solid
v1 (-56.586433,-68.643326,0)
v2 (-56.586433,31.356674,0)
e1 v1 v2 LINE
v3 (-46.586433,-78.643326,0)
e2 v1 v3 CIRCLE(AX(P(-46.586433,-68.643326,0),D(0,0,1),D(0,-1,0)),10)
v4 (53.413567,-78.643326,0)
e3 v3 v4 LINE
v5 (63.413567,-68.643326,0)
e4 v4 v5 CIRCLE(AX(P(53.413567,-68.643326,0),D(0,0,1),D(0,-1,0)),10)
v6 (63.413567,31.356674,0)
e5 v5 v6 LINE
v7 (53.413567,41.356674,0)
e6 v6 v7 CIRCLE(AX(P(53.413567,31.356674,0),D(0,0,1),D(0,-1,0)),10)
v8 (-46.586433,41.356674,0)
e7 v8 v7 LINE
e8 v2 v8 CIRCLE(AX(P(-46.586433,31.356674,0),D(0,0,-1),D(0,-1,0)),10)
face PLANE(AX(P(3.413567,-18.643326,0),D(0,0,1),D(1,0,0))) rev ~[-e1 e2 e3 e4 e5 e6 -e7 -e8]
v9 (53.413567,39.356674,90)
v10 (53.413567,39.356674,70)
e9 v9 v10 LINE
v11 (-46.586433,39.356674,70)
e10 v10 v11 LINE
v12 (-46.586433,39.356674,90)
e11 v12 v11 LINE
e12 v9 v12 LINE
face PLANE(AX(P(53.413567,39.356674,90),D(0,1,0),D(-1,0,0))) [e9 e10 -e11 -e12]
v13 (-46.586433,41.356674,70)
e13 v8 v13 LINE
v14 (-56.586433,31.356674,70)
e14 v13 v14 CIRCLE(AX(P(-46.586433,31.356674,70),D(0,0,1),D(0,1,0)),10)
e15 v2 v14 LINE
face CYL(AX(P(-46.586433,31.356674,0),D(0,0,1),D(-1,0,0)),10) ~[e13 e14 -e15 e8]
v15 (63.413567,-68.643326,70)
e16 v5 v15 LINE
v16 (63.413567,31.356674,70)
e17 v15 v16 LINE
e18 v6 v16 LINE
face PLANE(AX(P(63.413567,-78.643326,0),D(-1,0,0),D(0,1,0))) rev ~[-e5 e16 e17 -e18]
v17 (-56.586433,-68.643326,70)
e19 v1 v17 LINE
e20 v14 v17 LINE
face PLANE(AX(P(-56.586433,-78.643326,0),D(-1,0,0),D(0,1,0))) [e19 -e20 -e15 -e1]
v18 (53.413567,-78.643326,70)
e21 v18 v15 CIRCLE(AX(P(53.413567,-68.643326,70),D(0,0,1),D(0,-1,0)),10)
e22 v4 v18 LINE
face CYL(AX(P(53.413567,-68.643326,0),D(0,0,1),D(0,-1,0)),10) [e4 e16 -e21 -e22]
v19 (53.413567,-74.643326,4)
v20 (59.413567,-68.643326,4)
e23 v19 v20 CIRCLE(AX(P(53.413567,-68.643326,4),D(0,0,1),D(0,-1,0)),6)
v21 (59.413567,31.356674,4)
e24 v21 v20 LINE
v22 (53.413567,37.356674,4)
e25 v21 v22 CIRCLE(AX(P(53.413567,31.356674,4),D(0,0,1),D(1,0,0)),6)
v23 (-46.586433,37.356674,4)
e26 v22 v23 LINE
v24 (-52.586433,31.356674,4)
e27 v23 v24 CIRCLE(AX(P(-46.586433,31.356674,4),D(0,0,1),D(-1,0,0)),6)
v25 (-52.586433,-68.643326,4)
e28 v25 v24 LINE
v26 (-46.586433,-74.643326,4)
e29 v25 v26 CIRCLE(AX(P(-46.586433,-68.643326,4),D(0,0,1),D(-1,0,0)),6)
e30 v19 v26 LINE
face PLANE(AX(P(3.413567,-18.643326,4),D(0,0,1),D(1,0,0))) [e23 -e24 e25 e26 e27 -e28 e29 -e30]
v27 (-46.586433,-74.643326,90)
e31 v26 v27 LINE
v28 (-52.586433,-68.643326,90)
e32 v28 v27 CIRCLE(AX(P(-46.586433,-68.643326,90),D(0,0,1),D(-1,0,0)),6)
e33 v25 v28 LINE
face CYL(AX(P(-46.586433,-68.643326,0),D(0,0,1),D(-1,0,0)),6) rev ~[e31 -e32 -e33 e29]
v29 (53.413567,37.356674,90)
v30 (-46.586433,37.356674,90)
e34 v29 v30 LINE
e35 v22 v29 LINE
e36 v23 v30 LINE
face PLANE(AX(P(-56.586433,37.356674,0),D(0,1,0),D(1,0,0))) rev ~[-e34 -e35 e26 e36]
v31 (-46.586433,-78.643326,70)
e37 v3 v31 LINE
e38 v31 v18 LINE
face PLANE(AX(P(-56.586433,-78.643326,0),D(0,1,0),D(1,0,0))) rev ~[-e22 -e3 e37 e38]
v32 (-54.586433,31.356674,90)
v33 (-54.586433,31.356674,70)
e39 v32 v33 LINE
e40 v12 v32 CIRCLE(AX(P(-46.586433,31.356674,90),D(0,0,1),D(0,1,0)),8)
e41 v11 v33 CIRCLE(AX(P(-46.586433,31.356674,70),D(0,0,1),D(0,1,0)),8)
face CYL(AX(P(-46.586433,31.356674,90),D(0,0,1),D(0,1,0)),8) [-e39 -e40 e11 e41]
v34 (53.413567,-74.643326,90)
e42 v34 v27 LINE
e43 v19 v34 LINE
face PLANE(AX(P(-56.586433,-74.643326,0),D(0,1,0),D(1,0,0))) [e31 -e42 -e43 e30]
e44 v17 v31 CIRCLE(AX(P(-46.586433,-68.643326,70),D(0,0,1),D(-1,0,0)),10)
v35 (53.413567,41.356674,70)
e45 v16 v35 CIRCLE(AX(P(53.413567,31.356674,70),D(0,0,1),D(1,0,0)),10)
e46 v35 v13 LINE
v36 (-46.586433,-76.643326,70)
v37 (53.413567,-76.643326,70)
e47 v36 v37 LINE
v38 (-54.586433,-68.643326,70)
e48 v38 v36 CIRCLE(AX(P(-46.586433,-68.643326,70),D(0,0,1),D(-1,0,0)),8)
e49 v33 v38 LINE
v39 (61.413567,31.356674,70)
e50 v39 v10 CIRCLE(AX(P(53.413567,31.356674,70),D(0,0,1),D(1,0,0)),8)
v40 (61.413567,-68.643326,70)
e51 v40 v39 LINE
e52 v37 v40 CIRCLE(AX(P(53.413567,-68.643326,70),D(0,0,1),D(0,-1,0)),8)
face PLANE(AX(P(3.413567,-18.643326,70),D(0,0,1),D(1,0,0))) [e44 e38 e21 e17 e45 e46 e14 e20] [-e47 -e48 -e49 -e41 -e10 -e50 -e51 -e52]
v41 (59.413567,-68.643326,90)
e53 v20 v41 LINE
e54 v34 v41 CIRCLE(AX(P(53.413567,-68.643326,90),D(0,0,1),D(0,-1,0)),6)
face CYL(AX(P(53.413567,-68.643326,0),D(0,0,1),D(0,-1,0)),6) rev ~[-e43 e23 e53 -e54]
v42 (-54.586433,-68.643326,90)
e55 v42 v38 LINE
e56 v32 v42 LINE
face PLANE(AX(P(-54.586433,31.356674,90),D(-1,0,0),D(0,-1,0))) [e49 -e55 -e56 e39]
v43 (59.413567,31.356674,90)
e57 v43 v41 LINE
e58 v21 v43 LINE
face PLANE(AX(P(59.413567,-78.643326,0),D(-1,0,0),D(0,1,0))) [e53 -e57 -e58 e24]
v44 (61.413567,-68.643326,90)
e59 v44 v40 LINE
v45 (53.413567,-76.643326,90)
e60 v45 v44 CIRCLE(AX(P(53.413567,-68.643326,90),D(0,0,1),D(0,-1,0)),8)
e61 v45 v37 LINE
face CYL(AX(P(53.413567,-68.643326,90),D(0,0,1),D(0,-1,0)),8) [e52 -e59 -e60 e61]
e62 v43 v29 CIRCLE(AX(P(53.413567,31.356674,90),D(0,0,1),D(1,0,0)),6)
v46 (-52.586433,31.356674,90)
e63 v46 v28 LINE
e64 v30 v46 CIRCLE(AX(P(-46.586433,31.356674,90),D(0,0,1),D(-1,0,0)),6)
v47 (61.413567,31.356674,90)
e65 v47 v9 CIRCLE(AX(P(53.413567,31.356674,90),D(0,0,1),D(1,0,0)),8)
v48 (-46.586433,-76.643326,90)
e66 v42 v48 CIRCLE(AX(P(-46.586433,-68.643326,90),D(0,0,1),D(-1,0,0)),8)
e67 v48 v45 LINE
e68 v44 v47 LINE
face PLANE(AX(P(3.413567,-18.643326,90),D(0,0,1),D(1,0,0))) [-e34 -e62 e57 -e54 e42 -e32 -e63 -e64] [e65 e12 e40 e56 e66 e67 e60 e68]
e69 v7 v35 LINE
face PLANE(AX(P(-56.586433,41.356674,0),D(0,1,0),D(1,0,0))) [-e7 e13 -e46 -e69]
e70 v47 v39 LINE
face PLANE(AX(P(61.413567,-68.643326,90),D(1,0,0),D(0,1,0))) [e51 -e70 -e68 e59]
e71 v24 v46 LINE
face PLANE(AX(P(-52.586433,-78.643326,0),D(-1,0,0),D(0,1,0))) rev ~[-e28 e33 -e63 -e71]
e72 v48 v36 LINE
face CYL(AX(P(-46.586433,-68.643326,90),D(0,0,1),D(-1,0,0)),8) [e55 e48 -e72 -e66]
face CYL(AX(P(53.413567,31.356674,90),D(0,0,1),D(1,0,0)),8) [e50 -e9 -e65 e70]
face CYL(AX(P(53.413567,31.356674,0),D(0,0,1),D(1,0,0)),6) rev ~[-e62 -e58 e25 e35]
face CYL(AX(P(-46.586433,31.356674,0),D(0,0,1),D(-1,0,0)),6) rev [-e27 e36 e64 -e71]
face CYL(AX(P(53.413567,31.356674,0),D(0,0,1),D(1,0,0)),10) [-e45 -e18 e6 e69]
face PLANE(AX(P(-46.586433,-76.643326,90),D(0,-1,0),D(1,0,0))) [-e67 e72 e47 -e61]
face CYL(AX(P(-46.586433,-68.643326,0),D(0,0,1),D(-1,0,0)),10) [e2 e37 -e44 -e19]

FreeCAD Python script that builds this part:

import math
import FreeCAD as App
import Part
import Sketcher

V = App.Vector
Q = App.Units.Quantity


def edges_at(feature, points):
    """Names of the edges that pass closest to the given points."""
    edges = feature.Shape.Edges
    near = lambda p: min(range(len(edges)), key=lambda i: edges[i].distToShape(Part.Vertex(*p))[0])
    return sorted({f"Edge{near(p) + 1}" for p in points})


def faces_at(feature, points):
    """Names of the faces that lie closest to the given points."""
    faces = feature.Shape.Faces
    near = lambda p: min(range(len(faces)), key=lambda i: faces[i].distToShape(Part.Vertex(*p))[0])
    return sorted({f"Face{near(p) + 1}" for p in points})

doc = App.newDocument("Part")
body = doc.addObject("PartDesign::Body", "Body")

sketch1 = doc.addObject("Sketcher::SketchObject", "Sketch")
body.addObject(sketch1)
sketch1.AttachmentSupport = (doc.XY_Plane, [""])
sketch1.MapMode = "FlatFace"
sketch1.addGeometry(Part.LineSegment(V(-56.586433, 41.356674, 0), V(-56.586433, -78.643326, 0)), False)
sketch1.addGeometry(Part.LineSegment(V(-56.586433, -78.643326, 0), V(63.413567, -78.643326, 0)), False)
sketch1.addGeometry(Part.LineSegment(V(63.413567, -78.643326, 0), V(63.413567, 41.356674, 0)), False)
sketch1.addGeometry(Part.LineSegment(V(63.413567, 41.356674, 0), V(-56.586433, 41.356674, 0)), False)
sketch1.addConstraint(Sketcher.Constraint("Coincident", 0, 2, 1, 1))
sketch1.addConstraint(Sketcher.Constraint("Coincident", 1, 2, 2, 1))
sketch1.addConstraint(Sketcher.Constraint("Coincident", 2, 2, 3, 1))
sketch1.addConstraint(Sketcher.Constraint("Coincident", 3, 2, 0, 1))
sketch1.addConstraint(Sketcher.Constraint("Vertical", 0))
sketch1.addConstraint(Sketcher.Constraint("Horizontal", 1))
sketch1.addConstraint(Sketcher.Constraint("Vertical", 2))
sketch1.addConstraint(Sketcher.Constraint("Horizontal", 3))
sketch1.addConstraint(Sketcher.Constraint("Equal", 3, 0))
sketch1.addConstraint(Sketcher.Constraint("DistanceX", 1, 1, 1, 2, Q("120 mm")))
sketch1.addConstraint(Sketcher.Constraint("DistanceX", 0, 2, -1, 1, Q("56.586433 mm")))
sketch1.addConstraint(Sketcher.Constraint("DistanceY", 0, 2, -1, 1, Q("78.643326 mm")))
pad1 = doc.addObject("PartDesign::Pad", "Pad")
body.addObject(pad1)
pad1.Profile = sketch1
pad1.Length = 90
doc.recompute()

fillet = doc.addObject("PartDesign::Fillet", "Fillet")
body.addObject(fillet)
fillet.Base = (pad1, edges_at(pad1, [
    (-56.586, 41.357, 45),
    (63.414, 41.357, 45),
    (63.414, -78.643, 45),
    (-56.586, -78.643, 45),
]))
fillet.Radius = 10
doc.recompute()

thickness = doc.addObject("PartDesign::Thickness", "Thickness")
body.addObject(thickness)
thickness.Base = (fillet, faces_at(fillet, [(3.414, -18.643, 90)]))
thickness.Value = 4
thickness.Reversed = True
thickness.Join = "Intersection"

sketch2 = doc.addObject("Sketcher::SketchObject", "Sketch001")
body.addObject(sketch2)
sketch2.AttachmentSupport = (doc.XY_Plane, [""])
sketch2.MapMode = "FlatFace"
sketch2.AttachmentOffset = App.Placement(V(0, 0, 90), App.Rotation())
sketch2.addGeometry(Part.LineSegment(V(-56.586433, 31.356674, 0), V(-56.586433, -68.643326, 0)), False)
sketch2.addGeometry(Part.ArcOfCircle(Part.Circle(V(-46.586433, -68.643326, 0), V(0, 0, 1), 10), math.radians(180), math.radians(270)), False)
sketch2.addGeometry(Part.LineSegment(V(-46.586433, -78.643326, 0), V(53.413567, -78.643326, 0)), False)
sketch2.addGeometry(Part.ArcOfCircle(Part.Circle(V(53.413567, -68.643326, 0), V(0, 0, 1), 10), math.radians(-90), math.radians(0)), False)
sketch2.addGeometry(Part.LineSegment(V(63.413567, -68.643326, 0), V(63.413567, 31.356674, 0)), False)
sketch2.addGeometry(Part.ArcOfCircle(Part.Circle(V(53.413567, 31.356674, 0), V(0, 0, 1), 10), math.radians(0), math.radians(90)), False)
sketch2.addGeometry(Part.LineSegment(V(53.413567, 41.356674, 0), V(-46.586433, 41.356674, 0)), False)
sketch2.addGeometry(Part.ArcOfCircle(Part.Circle(V(-46.586433, 31.356674, 0), V(0, 0, 1), 10), math.radians(90), math.radians(180)), False)
sketch2.addGeometry(Part.LineSegment(V(-54.586433, -68.643326, 0), V(-54.586433, 31.356674, 0)), False)
sketch2.addGeometry(Part.ArcOfCircle(Part.Circle(V(-46.586433, 31.356674, 0), V(0, 0, 1), 8), math.radians(90), math.radians(180)), False)
sketch2.addGeometry(Part.LineSegment(V(-46.586433, 39.356674, 0), V(53.413567, 39.356674, 0)), False)
sketch2.addGeometry(Part.ArcOfCircle(Part.Circle(V(53.413567, 31.356674, 0), V(0, 0, 1), 8), math.radians(0), math.radians(90)), False)
sketch2.addGeometry(Part.LineSegment(V(61.413567, 31.356674, 0), V(61.413567, -68.643326, 0)), False)
sketch2.addGeometry(Part.ArcOfCircle(Part.Circle(V(53.413567, -68.643326, 0), V(0, 0, 1), 8), math.radians(-90), math.radians(0)), False)
sketch2.addGeometry(Part.LineSegment(V(53.413567, -76.643326, 0), V(-46.586433, -76.643326, 0)), False)
sketch2.addGeometry(Part.ArcOfCircle(Part.Circle(V(-46.586433, -68.643326, 0), V(0, 0, 1), 8), math.radians(180), math.radians(270)), False)
sketch2.addConstraint(Sketcher.Constraint("Tangent", 0, 2, 1, 1))
sketch2.addConstraint(Sketcher.Constraint("Tangent", 1, 2, 2, 1))
sketch2.addConstraint(Sketcher.Constraint("Tangent", 2, 2, 3, 1))
sketch2.addConstraint(Sketcher.Constraint("Tangent", 3, 2, 4, 1))
sketch2.addConstraint(Sketcher.Constraint("Tangent", 4, 2, 5, 1))
sketch2.addConstraint(Sketcher.Constraint("Tangent", 5, 2, 6, 1))
sketch2.addConstraint(Sketcher.Constraint("Tangent", 6, 2, 7, 1))
sketch2.addConstraint(Sketcher.Constraint("Tangent", 7, 2, 0, 1))
sketch2.addConstraint(Sketcher.Constraint("Tangent", 8, 2, 9, 2))
sketch2.addConstraint(Sketcher.Constraint("Tangent", 9, 1, 10, 1))
sketch2.addConstraint(Sketcher.Constraint("Tangent", 10, 2, 11, 2))
sketch2.addConstraint(Sketcher.Constraint("Tangent", 11, 1, 12, 1))
sketch2.addConstraint(Sketcher.Constraint("Tangent", 12, 2, 13, 2))
sketch2.addConstraint(Sketcher.Constraint("Tangent", 13, 1, 14, 1))
sketch2.addConstraint(Sketcher.Constraint("Tangent", 14, 2, 15, 2))
sketch2.addConstraint(Sketcher.Constraint("Tangent", 15, 1, 8, 1))
sketch2.addConstraint(Sketcher.Constraint("Vertical", 0))
sketch2.addConstraint(Sketcher.Constraint("Horizontal", 2))
sketch2.addConstraint(Sketcher.Constraint("Vertical", 4))
sketch2.addConstraint(Sketcher.Constraint("Horizontal", 6))
sketch2.addConstraint(Sketcher.Constraint("Vertical", 8))
sketch2.addConstraint(Sketcher.Constraint("Horizontal", 10))
sketch2.addConstraint(Sketcher.Constraint("Vertical", 12))
sketch2.addConstraint(Sketcher.Constraint("Horizontal", 14))
sketch2.addConstraint(Sketcher.Constraint("Coincident", 9, 3, 7, 3))
sketch2.addConstraint(Sketcher.Constraint("Coincident", 11, 3, 5, 3))
sketch2.addConstraint(Sketcher.Constraint("Coincident", 13, 3, 3, 3))
sketch2.addConstraint(Sketcher.Constraint("Equal", 1, 3))
sketch2.addConstraint(Sketcher.Constraint("Equal", 3, 5))
sketch2.addConstraint(Sketcher.Constraint("Equal", 5, 7))
sketch2.addConstraint(Sketcher.Constraint("Equal", 13, 15))
sketch2.addConstraint(Sketcher.Constraint("Equal", 14, 0))
sketch2.addConstraint(Sketcher.Constraint("Radius", 1, Q("10 mm")))
sketch2.addConstraint(Sketcher.Constraint("Radius", 9, Q("8 mm")))
sketch2.addConstraint(Sketcher.Constraint("DistanceX", 2, 1, 2, 2, Q("100 mm")))
sketch2.addConstraint(Sketcher.Constraint("DistanceX", 1, 3, -1, 1, Q("46.586433 mm")))
sketch2.addConstraint(Sketcher.Constraint("DistanceY", 1, 3, -1, 1, Q("68.643326 mm")))
pocket1 = doc.addObject("PartDesign::Pocket", "Pocket")
body.addObject(pocket1)
pocket1.Profile = sketch2
pocket1.Length = 20

doc.recompute()
